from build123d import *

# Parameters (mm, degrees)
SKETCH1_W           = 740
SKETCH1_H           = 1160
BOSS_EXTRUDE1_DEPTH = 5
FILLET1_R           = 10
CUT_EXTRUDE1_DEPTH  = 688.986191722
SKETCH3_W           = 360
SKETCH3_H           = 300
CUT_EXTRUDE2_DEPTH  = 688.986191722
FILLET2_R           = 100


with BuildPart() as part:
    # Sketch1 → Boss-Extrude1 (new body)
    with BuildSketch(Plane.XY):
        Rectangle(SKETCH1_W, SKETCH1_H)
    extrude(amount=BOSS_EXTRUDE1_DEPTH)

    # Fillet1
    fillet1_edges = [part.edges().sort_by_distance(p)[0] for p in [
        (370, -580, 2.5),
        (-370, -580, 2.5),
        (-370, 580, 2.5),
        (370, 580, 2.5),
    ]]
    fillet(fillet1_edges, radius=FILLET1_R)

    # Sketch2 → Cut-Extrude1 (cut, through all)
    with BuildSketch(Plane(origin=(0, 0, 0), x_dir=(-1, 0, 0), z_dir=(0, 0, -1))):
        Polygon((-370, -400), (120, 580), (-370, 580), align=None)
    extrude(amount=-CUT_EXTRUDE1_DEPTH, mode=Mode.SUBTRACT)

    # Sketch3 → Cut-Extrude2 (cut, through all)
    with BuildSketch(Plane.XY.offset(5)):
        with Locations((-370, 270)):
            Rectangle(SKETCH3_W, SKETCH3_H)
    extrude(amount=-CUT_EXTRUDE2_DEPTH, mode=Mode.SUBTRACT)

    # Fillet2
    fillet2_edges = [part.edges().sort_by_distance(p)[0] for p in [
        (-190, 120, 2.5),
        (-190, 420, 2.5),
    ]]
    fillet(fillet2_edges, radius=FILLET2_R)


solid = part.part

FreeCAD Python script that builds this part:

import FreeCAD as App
import Part
import Sketcher
from FreeCAD import Vector


def edges_at(feature, points):
    """Names of the edges that pass closest to the given points."""
    edges = feature.Shape.Edges
    near = lambda p: min(range(len(edges)), key=lambda i: edges[i].distToShape(Part.Vertex(*p))[0])
    return sorted({f"Edge{near(p) + 1}" for p in points})


def add_polygon(sketch, points):
    """Adds a closed chain of lines whose ends are joined by coincident constraints."""
    first, n = sketch.GeometryCount, len(points)
    for a, b in zip(points, points[1:] + points[:1]):
        sketch.addGeometry(Part.LineSegment(App.Vector(*a, 0), App.Vector(*b, 0)), False)
    for i in range(n):
        sketch.addConstraint(Sketcher.Constraint("Coincident", first + i, 2, first + (i + 1) % n, 1))

doc = App.newDocument("Part")
body = doc.addObject("PartDesign::Body", "Body")

# Sketch on XY plane
sketch1 = doc.addObject("Sketcher::SketchObject", "Sketch")
body.addObject(sketch1)
sketch1.AttachmentSupport = (doc.XY_Plane, [""])
sketch1.MapMode = "FlatFace"
add_polygon(sketch1, [(-370, 580), (-370, -580), (370, -580), (370, 580)])  # lines 0-3
sketch1.addConstraint(Sketcher.Constraint("Vertical", 0))
sketch1.addConstraint(Sketcher.Constraint("Horizontal", 1))
sketch1.addConstraint(Sketcher.Constraint("Vertical", 2))
sketch1.addConstraint(Sketcher.Constraint("Horizontal", 3))
sketch1.addConstraint(Sketcher.Constraint("Symmetric", 0, 2, 2, 2, -1, 1))
sketch1.addConstraint(Sketcher.Constraint("DistanceX", 1, 1, 1, 2, 740.0))
sketch1.addConstraint(Sketcher.Constraint("DistanceY", 0, 2, 0, 1, 1160.0))
pad1 = doc.addObject("PartDesign::Pad", "Pad")
body.addObject(pad1)
pad1.Profile = sketch1
pad1.Length = 5
doc.recompute()

fillet = doc.addObject("PartDesign::Fillet", "Fillet")
body.addObject(fillet)
fillet.Base = (pad1, edges_at(pad1, [
    (370, -580, 2.5),
    (-370, -580, 2.5),
    (-370, 580, 2.5),
    (370, 580, 2.5),
]))
fillet.Radius = 10

# Sketch on XY plane
sketch2 = doc.addObject("Sketcher::SketchObject", "Sketch001")
body.addObject(sketch2)
sketch2.AttachmentSupport = (doc.XY_Plane, [""])
sketch2.MapMode = "FlatFace"
add_polygon(sketch2, [(370, -400), (-120, 580), (370, 580)])  # lines 0-2
sketch2.addConstraint(Sketcher.Constraint("Horizontal", 1))
sketch2.addConstraint(Sketcher.Constraint("Vertical", 2))
sketch2.addConstraint(Sketcher.Constraint("DistanceX", 1, 1, 1, 2, 490.0))
sketch2.addConstraint(Sketcher.Constraint("DistanceY", 2, 2, 2, 1, 980.0))
sketch2.addConstraint(Sketcher.Constraint("DistanceX", 0, 2, -1, 1, 120.0))
sketch2.addConstraint(Sketcher.Constraint("DistanceY", -1, 1, 0, 2, 580.0))
pocket1 = doc.addObject("PartDesign::Pocket", "Pocket")
body.addObject(pocket1)
pocket1.Profile = sketch2
pocket1.Type = "ThroughAll"
pocket1.Reversed = True

# Sketch on XY plane
sketch3 = doc.addObject("Sketcher::SketchObject", "Sketch002")
body.addObject(sketch3)
sketch3.AttachmentSupport = (doc.XY_Plane, [""])
sketch3.MapMode = "FlatFace"
sketch3.AttachmentOffset = App.Placement(Vector(0, 0, 5), App.Rotation())
add_polygon(sketch3, [(-550, 420), (-550, 120), (-190, 120), (-190, 420)])  # lines 0-3
sketch3.addConstraint(Sketcher.Constraint("Vertical", 0))
sketch3.addConstraint(Sketcher.Constraint("Horizontal", 1))
sketch3.addConstraint(Sketcher.Constraint("Vertical", 2))
sketch3.addConstraint(Sketcher.Constraint("Horizontal", 3))
sketch3.addConstraint(Sketcher.Constraint("DistanceX", 1, 1, 1, 2, 360.0))
sketch3.addConstraint(Sketcher.Constraint("DistanceY", 0, 2, 0, 1, 300.0))
sketch3.addConstraint(Sketcher.Constraint("DistanceX", 0, 2, -1, 1, 550.0))
sketch3.addConstraint(Sketcher.Constraint("DistanceY", -1, 1, 0, 2, 120.0))
pocket2 = doc.addObject("PartDesign::Pocket", "Pocket001")
body.addObject(pocket2)
pocket2.Profile = sketch3
pocket2.Type = "ThroughAll"
doc.recompute()

fillet2 = doc.addObject("PartDesign::Fillet", "Fillet001")
body.addObject(fillet2)
fillet2.Base = (pocket2, edges_at(pocket2, [(-190, 120, 2.5), (-190, 420, 2.5)]))
fillet2.Radius = 100

doc.recompute()
